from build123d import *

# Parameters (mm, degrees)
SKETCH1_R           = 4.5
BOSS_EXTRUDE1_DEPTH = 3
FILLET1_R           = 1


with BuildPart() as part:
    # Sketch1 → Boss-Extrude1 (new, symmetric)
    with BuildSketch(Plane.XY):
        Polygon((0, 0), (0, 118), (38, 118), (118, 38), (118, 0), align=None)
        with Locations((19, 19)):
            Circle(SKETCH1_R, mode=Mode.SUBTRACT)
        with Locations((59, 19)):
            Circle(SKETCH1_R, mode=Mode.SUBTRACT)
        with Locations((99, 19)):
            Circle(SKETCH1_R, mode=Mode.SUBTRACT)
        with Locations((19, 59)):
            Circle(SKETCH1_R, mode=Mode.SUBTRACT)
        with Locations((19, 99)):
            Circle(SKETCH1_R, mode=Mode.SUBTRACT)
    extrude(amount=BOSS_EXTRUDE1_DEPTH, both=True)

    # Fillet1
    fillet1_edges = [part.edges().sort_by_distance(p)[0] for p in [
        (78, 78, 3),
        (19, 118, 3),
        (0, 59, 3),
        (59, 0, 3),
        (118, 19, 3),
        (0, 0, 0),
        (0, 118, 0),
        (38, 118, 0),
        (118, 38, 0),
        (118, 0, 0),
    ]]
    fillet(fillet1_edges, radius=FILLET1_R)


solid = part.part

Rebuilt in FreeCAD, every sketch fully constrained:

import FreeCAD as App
import Part
import Sketcher

V = App.Vector
Q = App.Units.Quantity


def edges_at(feature, points):
    """Names of the edges that pass closest to the given points."""
    edges = feature.Shape.Edges
    near = lambda p: min(range(len(edges)), key=lambda i: edges[i].distToShape(Part.Vertex(*p))[0])
    return sorted({f"Edge{near(p) + 1}" for p in points})


def add_polygon(sketch, points):
    """Adds a closed chain of lines whose ends are joined by coincident constraints."""
    first, n = sketch.GeometryCount, len(points)
    for a, b in zip(points, points[1:] + points[:1]):
        sketch.addGeometry(Part.LineSegment(App.Vector(*a, 0), App.Vector(*b, 0)), False)
    for i in range(n):
        sketch.addConstraint(Sketcher.Constraint("Coincident", first + i, 2, first + (i + 1) % n, 1))

doc = App.newDocument("Part")
params = doc.addObject("Spreadsheet::Sheet", "Params")
for row, (alias, value) in enumerate([
    ("sketch1_diameter", "9 mm"),
    ("sketch1_width", "118 mm"),
    ("sketch1_width2", "38 mm"),
    ("pad1_length", "6 mm"),
    ("fillet_radius", "1 mm"),
], start=1):
    params.set(f"A{row}", alias)
    params.set(f"B{row}", "=" + value)
    params.setAlias(f"B{row}", alias)

body = doc.addObject("PartDesign::Body", "Body")

# Sketch on XY plane
sketch1 = body.newObject("Sketcher::SketchObject", "Sketch")
sketch1.AttachmentSupport = (doc.getObject("XY_Plane"), [""])
sketch1.MapMode = "FlatFace"
add_polygon(sketch1, [(0, 118), (0, 0), (118, 0), (118, 38), (38, 118)])  # lines 0-4
sketch1.addGeometry(Part.Circle(V(99, 19, 0), V(0, 0, 1), 4.5), False)  # 5
sketch1.addGeometry(Part.Circle(V(59, 19, 0), V(0, 0, 1), 4.5), False)  # 6
sketch1.addGeometry(Part.Circle(V(19, 19, 0), V(0, 0, 1), 4.5), False)  # 7
sketch1.addGeometry(Part.Circle(V(19, 59, 0), V(0, 0, 1), 4.5), False)  # 8
sketch1.addGeometry(Part.Circle(V(19, 99, 0), V(0, 0, 1), 4.5), False)  # 9
sketch1.addConstraint(Sketcher.Constraint("Vertical", 0))
sketch1.addConstraint(Sketcher.Constraint("Horizontal", 1))
sketch1.addConstraint(Sketcher.Constraint("Vertical", 2))
sketch1.addConstraint(Sketcher.Constraint("Horizontal", 4))
sketch1.addConstraint(Sketcher.Constraint("Coincident", 0, 2, -1, 1))
sketch1.addConstraint(Sketcher.Constraint("Equal", 5, 6))
sketch1.addConstraint(Sketcher.Constraint("Equal", 6, 7))
sketch1.addConstraint(Sketcher.Constraint("Equal", 7, 8))
sketch1.addConstraint(Sketcher.Constraint("Equal", 8, 9))
sketch1.addConstraint(Sketcher.Constraint("Horizontal", 5, 3, 6, 3))
sketch1.addConstraint(Sketcher.Constraint("Horizontal", 6, 3, 7, 3))
sketch1.addConstraint(Sketcher.Constraint("Vertical", 7, 3, 8, 3))
sketch1.addConstraint(Sketcher.Constraint("Vertical", 8, 3, 9, 3))
sketch1.addConstraint(Sketcher.Constraint("Equal", 1, 0))
sketch1.addConstraint(Sketcher.Constraint("Equal", 4, 2))
sketch1.addConstraint(Sketcher.Constraint("Diameter", 5, Q("9 mm")))
sketch1.addConstraint(Sketcher.Constraint("DistanceX", 1, 1, 1, 2, Q("118 mm")))
sketch1.addConstraint(Sketcher.Constraint("DistanceX", 4, 2, 4, 1, Q("38 mm")))
sketch1.addConstraint(Sketcher.Constraint("DistanceX", -1, 1, 5, 3, Q("99 mm")))
sketch1.addConstraint(Sketcher.Constraint("DistanceY", -1, 1, 5, 3, Q("19 mm")))
sketch1.addConstraint(Sketcher.Constraint("DistanceX", -1, 1, 6, 3, Q("59 mm")))
sketch1.addConstraint(Sketcher.Constraint("DistanceX", -1, 1, 7, 3, Q("19 mm")))
sketch1.addConstraint(Sketcher.Constraint("DistanceY", -1, 1, 8, 3, Q("59 mm")))
sketch1.addConstraint(Sketcher.Constraint("DistanceY", -1, 1, 9, 3, Q("99 mm")))
sketch1.setExpression("Constraints[20]", "Params.sketch1_diameter")
sketch1.setExpression("Constraints[21]", "Params.sketch1_width")
sketch1.setExpression("Constraints[22]", "Params.sketch1_width2")
pad1 = body.newObject("PartDesign::Pad", "Pad")
pad1.Profile = sketch1
pad1.setExpression("Length", "Params.pad1_length")
pad1.Midplane = True
doc.recompute()

fillet = body.newObject("PartDesign::Fillet", "Fillet")
fillet.Base = (pad1, edges_at(pad1, [
    (78, 78, 3),
    (19, 118, 3),
    (0, 59, 3),
    (59, 0, 3),
    (118, 19, 3),
    (0, 0, 0),
    (0, 118, 0),
    (38, 118, 0),
    (118, 38, 0),
    (118, 0, 0),
]))
fillet.setExpression("Radius", "Params.fillet_radius")

doc.recompute()
